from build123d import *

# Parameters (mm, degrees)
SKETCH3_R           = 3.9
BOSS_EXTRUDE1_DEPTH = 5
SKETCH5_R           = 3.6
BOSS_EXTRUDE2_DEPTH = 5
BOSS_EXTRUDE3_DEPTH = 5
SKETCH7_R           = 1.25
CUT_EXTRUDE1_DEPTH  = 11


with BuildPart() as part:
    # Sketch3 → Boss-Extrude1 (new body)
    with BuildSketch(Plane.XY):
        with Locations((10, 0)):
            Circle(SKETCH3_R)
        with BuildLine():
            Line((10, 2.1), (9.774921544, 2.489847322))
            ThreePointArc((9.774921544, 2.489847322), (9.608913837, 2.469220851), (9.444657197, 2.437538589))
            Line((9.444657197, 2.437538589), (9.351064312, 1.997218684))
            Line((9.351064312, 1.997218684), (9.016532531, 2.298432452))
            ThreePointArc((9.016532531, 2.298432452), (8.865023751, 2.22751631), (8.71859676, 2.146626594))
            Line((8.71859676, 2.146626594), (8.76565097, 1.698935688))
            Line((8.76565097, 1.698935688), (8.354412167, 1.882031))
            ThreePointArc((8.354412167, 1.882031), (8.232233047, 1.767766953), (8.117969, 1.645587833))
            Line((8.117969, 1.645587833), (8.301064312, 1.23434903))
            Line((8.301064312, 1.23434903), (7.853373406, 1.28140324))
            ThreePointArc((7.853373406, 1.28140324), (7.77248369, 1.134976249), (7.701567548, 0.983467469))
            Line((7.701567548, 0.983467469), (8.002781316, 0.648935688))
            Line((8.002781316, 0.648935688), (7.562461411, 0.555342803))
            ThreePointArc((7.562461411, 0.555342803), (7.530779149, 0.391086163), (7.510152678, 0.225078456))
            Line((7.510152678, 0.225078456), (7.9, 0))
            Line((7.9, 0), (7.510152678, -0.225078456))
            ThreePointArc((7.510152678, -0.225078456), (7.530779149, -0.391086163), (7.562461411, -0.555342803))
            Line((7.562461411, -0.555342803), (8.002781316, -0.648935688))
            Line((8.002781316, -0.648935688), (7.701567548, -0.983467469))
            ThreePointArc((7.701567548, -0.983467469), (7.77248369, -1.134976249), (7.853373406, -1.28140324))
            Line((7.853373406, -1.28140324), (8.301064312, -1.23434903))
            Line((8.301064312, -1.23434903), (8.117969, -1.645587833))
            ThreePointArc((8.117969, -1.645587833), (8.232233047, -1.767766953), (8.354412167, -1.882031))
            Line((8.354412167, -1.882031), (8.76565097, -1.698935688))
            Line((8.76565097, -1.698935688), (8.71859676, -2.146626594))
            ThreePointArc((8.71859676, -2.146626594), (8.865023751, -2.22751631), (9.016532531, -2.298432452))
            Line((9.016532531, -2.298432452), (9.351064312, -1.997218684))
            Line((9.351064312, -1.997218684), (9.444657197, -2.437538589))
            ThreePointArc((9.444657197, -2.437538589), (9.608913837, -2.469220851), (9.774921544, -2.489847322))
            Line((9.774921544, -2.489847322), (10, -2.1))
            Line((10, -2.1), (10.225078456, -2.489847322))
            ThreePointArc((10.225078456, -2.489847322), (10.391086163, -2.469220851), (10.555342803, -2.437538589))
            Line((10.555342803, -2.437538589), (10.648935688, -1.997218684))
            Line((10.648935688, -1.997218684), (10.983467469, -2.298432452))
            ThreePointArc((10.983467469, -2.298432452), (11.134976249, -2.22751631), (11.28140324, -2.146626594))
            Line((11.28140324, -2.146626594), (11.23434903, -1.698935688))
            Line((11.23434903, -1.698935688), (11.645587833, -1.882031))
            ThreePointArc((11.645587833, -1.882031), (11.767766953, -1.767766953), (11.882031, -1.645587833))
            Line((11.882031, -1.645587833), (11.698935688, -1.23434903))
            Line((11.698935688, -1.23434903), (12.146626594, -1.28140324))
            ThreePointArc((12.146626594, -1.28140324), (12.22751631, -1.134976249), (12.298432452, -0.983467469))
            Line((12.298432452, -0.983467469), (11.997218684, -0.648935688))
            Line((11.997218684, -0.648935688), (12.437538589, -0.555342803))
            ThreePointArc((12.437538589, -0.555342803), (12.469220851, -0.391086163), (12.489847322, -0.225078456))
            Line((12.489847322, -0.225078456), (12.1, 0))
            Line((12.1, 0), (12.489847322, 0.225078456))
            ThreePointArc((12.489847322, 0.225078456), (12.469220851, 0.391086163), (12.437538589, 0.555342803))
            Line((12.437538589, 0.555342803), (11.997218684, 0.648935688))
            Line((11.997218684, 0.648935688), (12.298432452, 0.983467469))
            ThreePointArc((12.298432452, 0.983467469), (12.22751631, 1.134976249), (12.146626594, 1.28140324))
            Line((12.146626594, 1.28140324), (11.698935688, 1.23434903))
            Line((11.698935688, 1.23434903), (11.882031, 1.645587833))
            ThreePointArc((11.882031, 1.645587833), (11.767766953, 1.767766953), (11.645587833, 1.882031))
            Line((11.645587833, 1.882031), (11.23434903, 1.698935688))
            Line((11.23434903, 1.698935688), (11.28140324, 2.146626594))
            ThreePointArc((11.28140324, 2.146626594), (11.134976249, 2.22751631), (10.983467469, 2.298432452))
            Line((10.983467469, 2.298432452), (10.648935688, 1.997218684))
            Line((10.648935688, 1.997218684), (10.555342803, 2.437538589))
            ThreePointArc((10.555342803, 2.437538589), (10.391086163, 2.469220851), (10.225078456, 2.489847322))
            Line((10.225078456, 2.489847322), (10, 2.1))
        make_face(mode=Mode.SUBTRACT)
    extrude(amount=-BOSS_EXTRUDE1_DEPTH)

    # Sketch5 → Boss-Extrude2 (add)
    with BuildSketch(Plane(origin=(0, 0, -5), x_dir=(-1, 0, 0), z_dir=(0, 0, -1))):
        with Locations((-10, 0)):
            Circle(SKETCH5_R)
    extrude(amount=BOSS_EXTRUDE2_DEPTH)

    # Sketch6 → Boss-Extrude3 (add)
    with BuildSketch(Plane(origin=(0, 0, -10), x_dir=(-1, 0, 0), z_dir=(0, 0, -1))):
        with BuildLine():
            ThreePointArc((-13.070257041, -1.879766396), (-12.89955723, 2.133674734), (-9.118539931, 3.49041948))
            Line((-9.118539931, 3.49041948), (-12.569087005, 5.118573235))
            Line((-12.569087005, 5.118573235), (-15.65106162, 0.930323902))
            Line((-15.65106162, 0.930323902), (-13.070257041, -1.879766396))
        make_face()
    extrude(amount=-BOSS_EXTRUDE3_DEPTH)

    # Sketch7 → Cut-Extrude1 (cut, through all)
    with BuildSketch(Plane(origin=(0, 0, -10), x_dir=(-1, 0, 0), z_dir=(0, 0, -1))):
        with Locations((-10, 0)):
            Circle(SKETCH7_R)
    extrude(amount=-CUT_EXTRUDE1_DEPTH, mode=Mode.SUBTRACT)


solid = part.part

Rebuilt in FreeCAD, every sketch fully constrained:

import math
import FreeCAD as App
import Part
import Sketcher

V = App.Vector
Q = App.Units.Quantity

doc = App.newDocument("Part")
body = doc.addObject("PartDesign::Body", "Body")

sketch1 = body.newObject("Sketcher::SketchObject", "Sketch")
sketch1.AttachmentSupport = (doc.getObject("XY_Plane"), [""])
sketch1.MapMode = "FlatFace"
sketch1.addGeometry([
    Part.Circle(V(10, 0, 0), V(0, 0, 1), 3.9),
    Part.LineSegment(V(9.77, 2.49, 0), V(10, 2.1, 0)),
    Part.LineSegment(V(10, 2.1, 0), V(10.23, 2.49, 0)),
    Part.ArcOfCircle(Part.Circle(V(10, 0, 0), V(0, 0, 1), 2.5), math.radians(77.17), math.radians(84.83)),
    Part.LineSegment(V(10.56, 2.44, 0), V(10.65, 2, 0)),
    Part.LineSegment(V(10.65, 2, 0), V(10.98, 2.3, 0)),
    Part.ArcOfCircle(Part.Circle(V(10, 0, 0), V(0, 0, 1), 2.5), math.radians(59.17), math.radians(66.83)),
    Part.LineSegment(V(11.28, 2.15, 0), V(11.23, 1.7, 0)),
    Part.LineSegment(V(11.23, 1.7, 0), V(11.65, 1.88, 0)),
    Part.ArcOfCircle(Part.Circle(V(10, 0, 0), V(0, 0, 1), 2.5), math.radians(41.17), math.radians(48.83)),
    Part.LineSegment(V(11.88, 1.65, 0), V(11.7, 1.23, 0)),
    Part.LineSegment(V(11.7, 1.23, 0), V(12.15, 1.28, 0)),
    Part.ArcOfCircle(Part.Circle(V(10, 0, 0), V(0, 0, 1), 2.5), math.radians(23.17), math.radians(30.83)),
    Part.LineSegment(V(12.3, 0.98, 0), V(12, 0.65, 0)),
    Part.LineSegment(V(12, 0.65, 0), V(12.44, 0.56, 0)),
    Part.ArcOfCircle(Part.Circle(V(10, 0, 0), V(0, 0, 1), 2.5), math.radians(5.17), math.radians(12.83)),
    Part.LineSegment(V(12.49, 0.23, 0), V(12.1, 0, 0)),
    Part.LineSegment(V(12.1, 0, 0), V(12.49, -0.23, 0)),
    Part.ArcOfCircle(Part.Circle(V(10, 0, 0), V(0, 0, 1), 2.5), math.radians(-12.83), math.radians(-5.17)),
    Part.LineSegment(V(12.44, -0.56, 0), V(12, -0.65, 0)),
    Part.LineSegment(V(12, -0.65, 0), V(12.3, -0.98, 0)),
    Part.ArcOfCircle(Part.Circle(V(10, 0, 0), V(0, 0, 1), 2.5), math.radians(-30.83), math.radians(-23.17)),
    Part.LineSegment(V(12.15, -1.28, 0), V(11.7, -1.23, 0)),
    Part.LineSegment(V(11.7, -1.23, 0), V(11.88, -1.65, 0)),
    Part.ArcOfCircle(Part.Circle(V(10, 0, 0), V(0, 0, 1), 2.5), math.radians(-48.83), math.radians(-41.17)),
    Part.LineSegment(V(11.65, -1.88, 0), V(11.23, -1.7, 0)),
    Part.LineSegment(V(11.23, -1.7, 0), V(11.28, -2.15, 0)),
    Part.ArcOfCircle(Part.Circle(V(10, 0, 0), V(0, 0, 1), 2.5), math.radians(-66.83), math.radians(-59.17)),
    Part.LineSegment(V(10.98, -2.3, 0), V(10.65, -2, 0)),
    Part.LineSegment(V(10.65, -2, 0), V(10.56, -2.44, 0)),
    Part.ArcOfCircle(Part.Circle(V(10, 0, 0), V(0, 0, 1), 2.5), math.radians(-84.83), math.radians(-77.17)),
    Part.LineSegment(V(10.23, -2.49, 0), V(10, -2.1, 0)),
    Part.LineSegment(V(10, -2.1, 0), V(9.77, -2.49, 0)),
    Part.ArcOfCircle(Part.Circle(V(10, 0, 0), V(0, 0, 1), 2.5), math.radians(-102.83), math.radians(-95.17)),
    Part.LineSegment(V(9.44, -2.44, 0), V(9.35, -2, 0)),
    Part.LineSegment(V(9.35, -2, 0), V(9.02, -2.3, 0)),
    Part.ArcOfCircle(Part.Circle(V(10, 0, 0), V(0, 0, 1), 2.5), math.radians(-120.83), math.radians(-113.17)),
    Part.LineSegment(V(8.72, -2.15, 0), V(8.77, -1.7, 0)),
    Part.LineSegment(V(8.77, -1.7, 0), V(8.35, -1.88, 0)),
    Part.ArcOfCircle(Part.Circle(V(10, 0, 0), V(0, 0, 1), 2.5), math.radians(-138.83), math.radians(-131.17)),
    Part.LineSegment(V(8.12, -1.65, 0), V(8.3, -1.23, 0)),
    Part.LineSegment(V(8.3, -1.23, 0), V(7.85, -1.28, 0)),
    Part.ArcOfCircle(Part.Circle(V(10, 0, 0), V(0, 0, 1), 2.5), math.radians(-156.83), math.radians(-149.17)),
    Part.LineSegment(V(7.7, -0.98, 0), V(8, -0.65, 0)),
    Part.LineSegment(V(8, -0.65, 0), V(7.56, -0.56, 0)),
    Part.ArcOfCircle(Part.Circle(V(10, 0, 0), V(0, 0, 1), 2.5), math.radians(-174.83), math.radians(-167.17)),
    Part.LineSegment(V(7.51, -0.23, 0), V(7.9, 0, 0)),
    Part.LineSegment(V(7.9, 0, 0), V(7.51, 0.23, 0)),
    Part.ArcOfCircle(Part.Circle(V(10, 0, 0), V(0, 0, 1), 2.5), math.radians(167.17), math.radians(174.83)),
    Part.LineSegment(V(7.56, 0.56, 0), V(8, 0.65, 0)),
    Part.LineSegment(V(8, 0.65, 0), V(7.7, 0.98, 0)),
    Part.ArcOfCircle(Part.Circle(V(10, 0, 0), V(0, 0, 1), 2.5), math.radians(149.17), math.radians(156.83)),
    Part.LineSegment(V(7.85, 1.28, 0), V(8.3, 1.23, 0)),
    Part.LineSegment(V(8.3, 1.23, 0), V(8.12, 1.65, 0)),
    Part.ArcOfCircle(Part.Circle(V(10, 0, 0), V(0, 0, 1), 2.5), math.radians(131.17), math.radians(138.83)),
    Part.LineSegment(V(8.35, 1.88, 0), V(8.77, 1.7, 0)),
    Part.LineSegment(V(8.77, 1.7, 0), V(8.72, 2.15, 0)),
    Part.ArcOfCircle(Part.Circle(V(10, 0, 0), V(0, 0, 1), 2.5), math.radians(113.17), math.radians(120.83)),
    Part.LineSegment(V(9.02, 2.3, 0), V(9.35, 2, 0)),
    Part.LineSegment(V(9.35, 2, 0), V(9.44, 2.44, 0)),
    Part.ArcOfCircle(Part.Circle(V(10, 0, 0), V(0, 0, 1), 2.5), math.radians(95.17), math.radians(102.83)),
], False)
sketch1.addConstraint([
    Sketcher.Constraint("Coincident", 1, 2, 2, 1),
    Sketcher.Constraint("Coincident", 2, 2, 3, 2),
    Sketcher.Constraint("Coincident", 3, 1, 4, 1),
    Sketcher.Constraint("Coincident", 4, 2, 5, 1),
    Sketcher.Constraint("Coincident", 5, 2, 6, 2),
    Sketcher.Constraint("Coincident", 6, 1, 7, 1),
    Sketcher.Constraint("Coincident", 7, 2, 8, 1),
    Sketcher.Constraint("Coincident", 8, 2, 9, 2),
    Sketcher.Constraint("Coincident", 9, 1, 10, 1),
    Sketcher.Constraint("Coincident", 10, 2, 11, 1),
    Sketcher.Constraint("Coincident", 11, 2, 12, 2),
    Sketcher.Constraint("Coincident", 12, 1, 13, 1),
    Sketcher.Constraint("Coincident", 13, 2, 14, 1),
    Sketcher.Constraint("Coincident", 14, 2, 15, 2),
    Sketcher.Constraint("Coincident", 15, 1, 16, 1),
    Sketcher.Constraint("Coincident", 16, 2, 17, 1),
    Sketcher.Constraint("Coincident", 17, 2, 18, 2),
    Sketcher.Constraint("Coincident", 18, 1, 19, 1),
    Sketcher.Constraint("Coincident", 19, 2, 20, 1),
    Sketcher.Constraint("Coincident", 20, 2, 21, 2),
    Sketcher.Constraint("Coincident", 21, 1, 22, 1),
    Sketcher.Constraint("Coincident", 22, 2, 23, 1),
    Sketcher.Constraint("Coincident", 23, 2, 24, 2),
    Sketcher.Constraint("Coincident", 24, 1, 25, 1),
    Sketcher.Constraint("Coincident", 25, 2, 26, 1),
    Sketcher.Constraint("Coincident", 26, 2, 27, 2),
    Sketcher.Constraint("Coincident", 27, 1, 28, 1),
    Sketcher.Constraint("Coincident", 28, 2, 29, 1),
    Sketcher.Constraint("Coincident", 29, 2, 30, 2),
    Sketcher.Constraint("Coincident", 30, 1, 31, 1),
    Sketcher.Constraint("Coincident", 31, 2, 32, 1),
    Sketcher.Constraint("Coincident", 32, 2, 33, 2),
    Sketcher.Constraint("Coincident", 33, 1, 34, 1),
    Sketcher.Constraint("Coincident", 34, 2, 35, 1),
    Sketcher.Constraint("Coincident", 35, 2, 36, 2),
    Sketcher.Constraint("Coincident", 36, 1, 37, 1),
    Sketcher.Constraint("Coincident", 37, 2, 38, 1),
    Sketcher.Constraint("Coincident", 38, 2, 39, 2),
    Sketcher.Constraint("Coincident", 39, 1, 40, 1),
    Sketcher.Constraint("Coincident", 40, 2, 41, 1),
    Sketcher.Constraint("Coincident", 41, 2, 42, 2),
    Sketcher.Constraint("Coincident", 42, 1, 43, 1),
    Sketcher.Constraint("Coincident", 43, 2, 44, 1),
    Sketcher.Constraint("Coincident", 44, 2, 45, 2),
    Sketcher.Constraint("Coincident", 45, 1, 46, 1),
    Sketcher.Constraint("Coincident", 46, 2, 47, 1),
    Sketcher.Constraint("Coincident", 47, 2, 48, 2),
    Sketcher.Constraint("Coincident", 48, 1, 49, 1),
    Sketcher.Constraint("Coincident", 49, 2, 50, 1),
    Sketcher.Constraint("Coincident", 50, 2, 51, 2),
    Sketcher.Constraint("Coincident", 51, 1, 52, 1),
    Sketcher.Constraint("Coincident", 52, 2, 53, 1),
    Sketcher.Constraint("Coincident", 53, 2, 54, 2),
    Sketcher.Constraint("Coincident", 54, 1, 55, 1),
    Sketcher.Constraint("Coincident", 55, 2, 56, 1),
    Sketcher.Constraint("Coincident", 56, 2, 57, 2),
    Sketcher.Constraint("Coincident", 57, 1, 58, 1),
    Sketcher.Constraint("Coincident", 58, 2, 59, 1),
    Sketcher.Constraint("Coincident", 59, 2, 60, 2),
    Sketcher.Constraint("Coincident", 60, 1, 1, 1),
    Sketcher.Constraint("Coincident", 3, 3, 0, 3),
    Sketcher.Constraint("Coincident", 6, 3, 0, 3),
    Sketcher.Constraint("Coincident", 9, 3, 0, 3),
    Sketcher.Constraint("Coincident", 12, 3, 0, 3),
    Sketcher.Constraint("Coincident", 15, 3, 0, 3),
    Sketcher.Constraint("Coincident", 18, 3, 0, 3),
    Sketcher.Constraint("Coincident", 21, 3, 0, 3),
    Sketcher.Constraint("Coincident", 24, 3, 0, 3),
    Sketcher.Constraint("Coincident", 27, 3, 0, 3),
    Sketcher.Constraint("Coincident", 30, 3, 0, 3),
    Sketcher.Constraint("Coincident", 33, 3, 0, 3),
    Sketcher.Constraint("Coincident", 36, 3, 0, 3),
    Sketcher.Constraint("Coincident", 39, 3, 0, 3),
    Sketcher.Constraint("Coincident", 42, 3, 0, 3),
    Sketcher.Constraint("Coincident", 45, 3, 0, 3),
    Sketcher.Constraint("Coincident", 48, 3, 0, 3),
    Sketcher.Constraint("Coincident", 51, 3, 0, 3),
    Sketcher.Constraint("Coincident", 54, 3, 0, 3),
    Sketcher.Constraint("Coincident", 57, 3, 0, 3),
    Sketcher.Constraint("Coincident", 60, 3, 0, 3),
    Sketcher.Constraint("Equal", 3, 6),
    Sketcher.Constraint("Equal", 6, 9),
    Sketcher.Constraint("Equal", 9, 12),
    Sketcher.Constraint("Equal", 12, 15),
    Sketcher.Constraint("Equal", 15, 18),
    Sketcher.Constraint("Equal", 18, 21),
    Sketcher.Constraint("Equal", 21, 24),
    Sketcher.Constraint("Equal", 24, 27),
    Sketcher.Constraint("Equal", 27, 30),
    Sketcher.Constraint("Equal", 30, 33),
    Sketcher.Constraint("Equal", 33, 36),
    Sketcher.Constraint("Equal", 36, 39),
    Sketcher.Constraint("Equal", 39, 42),
    Sketcher.Constraint("Equal", 42, 45),
    Sketcher.Constraint("Equal", 45, 48),
    Sketcher.Constraint("Equal", 48, 51),
    Sketcher.Constraint("Equal", 51, 54),
    Sketcher.Constraint("Equal", 54, 57),
    Sketcher.Constraint("Equal", 57, 60),
    Sketcher.Constraint("Symmetric", 15, 1, 17, 2, -1),
    Sketcher.Constraint("Symmetric", 13, 2, 19, 2, -1),
    Sketcher.Constraint("Symmetric", 10, 2, 22, 2, -1),
    Sketcher.Constraint("Symmetric", 7, 2, 25, 2, -1),
    Sketcher.Constraint("Symmetric", 4, 2, 28, 2, -1),
    Sketcher.Constraint("Symmetric", 1, 2, 31, 2, -1),
    Sketcher.Constraint("Symmetric", 43, 2, 49, 2, -1),
    Sketcher.Constraint("Symmetric", 40, 2, 52, 2, -1),
    Sketcher.Constraint("Symmetric", 37, 2, 55, 2, -1),
    Sketcher.Constraint("Symmetric", 34, 2, 58, 2, -1),
    Sketcher.Constraint("PointOnObject", 16, 2, -1),
    Sketcher.Constraint("PointOnObject", 46, 2, -1),
    Sketcher.Constraint("Perpendicular", 1, 16),
    Sketcher.Constraint("Perpendicular", 2, 17),
    Sketcher.Constraint("Perpendicular", 4, 19),
    Sketcher.Constraint("Perpendicular", 5, 20),
    Sketcher.Constraint("Perpendicular", 7, 22),
    Sketcher.Constraint("Perpendicular", 8, 23),
    Sketcher.Constraint("Perpendicular", 10, 25),
    Sketcher.Constraint("Perpendicular", 11, 26),
    Sketcher.Constraint("Perpendicular", 13, 28),
    Sketcher.Constraint("Perpendicular", 14, 29),
    Sketcher.Constraint("Perpendicular", 16, 31),
    Sketcher.Constraint("Perpendicular", 17, 32),
    Sketcher.Constraint("Perpendicular", 19, 34),
    Sketcher.Constraint("Perpendicular", 20, 35),
    Sketcher.Constraint("Perpendicular", 22, 37),
    Sketcher.Constraint("Perpendicular", 23, 38),
    Sketcher.Constraint("Perpendicular", 25, 40),
    Sketcher.Constraint("Perpendicular", 26, 41),
    Sketcher.Constraint("Perpendicular", 28, 43),
    Sketcher.Constraint("Perpendicular", 29, 44),
    Sketcher.Constraint("Perpendicular", 31, 46),
    Sketcher.Constraint("Perpendicular", 32, 47),
    Sketcher.Constraint("Perpendicular", 34, 49),
    Sketcher.Constraint("Perpendicular", 35, 50),
    Sketcher.Constraint("Perpendicular", 37, 52),
    Sketcher.Constraint("Perpendicular", 38, 53),
    Sketcher.Constraint("Perpendicular", 40, 55),
    Sketcher.Constraint("Perpendicular", 41, 56),
    Sketcher.Constraint("Perpendicular", 43, 58),
    Sketcher.Constraint("Perpendicular", 44, 59),
    Sketcher.Constraint("Horizontal", 30, 1, 32, 2),
    Sketcher.Constraint("Horizontal", 29, 2, 33, 1),
    Sketcher.Constraint("Horizontal", 28, 2, 34, 2),
    Sketcher.Constraint("Horizontal", 27, 1, 35, 2),
    Sketcher.Constraint("Horizontal", 26, 2, 36, 1),
    Sketcher.Constraint("Horizontal", 25, 2, 37, 2),
    Sketcher.Constraint("Horizontal", 24, 1, 38, 2),
    Sketcher.Constraint("Horizontal", 23, 2, 39, 1),
    Sketcher.Constraint("Horizontal", 22, 2, 40, 2),
    Sketcher.Constraint("Horizontal", 21, 1, 41, 2),
    Sketcher.Constraint("Horizontal", 20, 2, 42, 1),
    Sketcher.Constraint("Horizontal", 19, 2, 43, 2),
    Sketcher.Constraint("Horizontal", 18, 1, 44, 2),
    Sketcher.Constraint("Horizontal", 17, 2, 45, 1),
    Sketcher.Constraint("Equal", 2, 4),
    Sketcher.Constraint("Equal", 4, 5),
    Sketcher.Constraint("Equal", 5, 7),
    Sketcher.Constraint("Equal", 7, 8),
    Sketcher.Constraint("Equal", 8, 10),
    Sketcher.Constraint("Equal", 10, 11),
    Sketcher.Constraint("Equal", 11, 13),
    Sketcher.Constraint("Equal", 13, 14),
    Sketcher.Constraint("Equal", 14, 16),
    Sketcher.Constraint("Diameter", 0, 7.8),
    Sketcher.Constraint("Radius", 3, 2.5),
    Sketcher.Constraint("Angle", 1, Q("-60 deg")),
    Sketcher.Constraint("Angle", 4, Q("-78 deg")),
    Sketcher.Constraint("Angle", 5, Q("42 deg")),
    Sketcher.Constraint("Angle", 7, Q("-96 deg")),
    Sketcher.Constraint("Angle", 8, Q("24 deg")),
    Sketcher.Constraint("DistanceX", -1, 1, 0, 3, 10.0),
    Sketcher.Constraint("DistanceY", -1, 1, 1, 2, 2.1),
])
pad1 = body.newObject("PartDesign::Pad", "Pad")
pad1.Profile = sketch1
pad1.Length = 5
pad1.Reversed = True

sketch2 = body.newObject("Sketcher::SketchObject", "Sketch001")
sketch2.AttachmentSupport = (doc.getObject("XY_Plane"), [""])
sketch2.MapMode = "FlatFace"
sketch2.AttachmentOffset = App.Placement(V(0, 0, -5), App.Rotation())
sketch2.addGeometry(Part.Circle(V(10, 0, 0), V(0, 0, 1), 3.6), False)
sketch2.addConstraint([
    Sketcher.Constraint("PointOnObject", 0, 3, -1),
    Sketcher.Constraint("Diameter", 0, 7.2),
    Sketcher.Constraint("DistanceX", -1, 1, 0, 3, 10.0),
])
pad2 = body.newObject("PartDesign::Pad", "Pad001")
pad2.Profile = sketch2
pad2.Length = 5
pad2.Reversed = True

sketch3 = body.newObject("Sketcher::SketchObject", "Sketch002")
sketch3.AttachmentSupport = (doc.getObject("XY_Plane"), [""])
sketch3.MapMode = "FlatFace"
sketch3.AttachmentOffset = App.Placement(V(0, 0, -10), App.Rotation())
sketch3.addGeometry([
    Part.ArcOfCircle(Part.Circle(V(10, 0, 0), V(0, 0, 1), 3.6), math.radians(-31), math.radians(104)),
    Part.LineSegment(V(9.1, 3.5, 0), V(12.6, 5.1, 0)),
    Part.LineSegment(V(12.6, 5.1, 0), V(15.7, 0.9, 0)),
    Part.LineSegment(V(15.7, 0.9, 0), V(13.1, -1.9, 0)),
], False)
sketch3.addConstraint([
    Sketcher.Constraint("Coincident", 0, 2, 1, 1),
    Sketcher.Constraint("Coincident", 1, 2, 2, 1),
    Sketcher.Constraint("Coincident", 2, 2, 3, 1),
    Sketcher.Constraint("Coincident", 3, 2, 0, 1),
    Sketcher.Constraint("PointOnObject", 0, 3, -1),
    Sketcher.Constraint("Equal", 1, 3),
    Sketcher.Constraint("Radius", 0, 3.6),
    Sketcher.Constraint("DistanceX", -1, 1, 0, 3, 10.0),
    Sketcher.Constraint("Distance", 2, 5.2),
    Sketcher.Constraint("DistanceX", -1, 1, 0, 2, 9.11854),
    Sketcher.Constraint("DistanceX", -1, 1, 2, 2, 15.651062),
    Sketcher.Constraint("DistanceY", 2, 2, 1, 2, 4.188249),
    Sketcher.Constraint("DistanceY", 3, 2, 2, 2, 2.81009),
])
pad3 = body.newObject("PartDesign::Pad", "Pad002")
pad3.Profile = sketch3
pad3.Length = 5

sketch4 = body.newObject("Sketcher::SketchObject", "Sketch003")
sketch4.AttachmentSupport = (doc.getObject("XY_Plane"), [""])
sketch4.MapMode = "FlatFace"
sketch4.AttachmentOffset = App.Placement(V(0, 0, -10), App.Rotation())
sketch4.addGeometry(Part.Circle(V(10, 0, 0), V(0, 0, 1), 1.2), False)
sketch4.addConstraint([
    Sketcher.Constraint("PointOnObject", 0, 3, -1),
    Sketcher.Constraint("Diameter", 0, 2.5),
    Sketcher.Constraint("DistanceX", -1, 1, 0, 3, 10.0),
])
pocket1 = body.newObject("PartDesign::Pocket", "Pocket")
pocket1.Profile = sketch4
pocket1.Type = "ThroughAll"
pocket1.Reversed = True

doc.recompute()
